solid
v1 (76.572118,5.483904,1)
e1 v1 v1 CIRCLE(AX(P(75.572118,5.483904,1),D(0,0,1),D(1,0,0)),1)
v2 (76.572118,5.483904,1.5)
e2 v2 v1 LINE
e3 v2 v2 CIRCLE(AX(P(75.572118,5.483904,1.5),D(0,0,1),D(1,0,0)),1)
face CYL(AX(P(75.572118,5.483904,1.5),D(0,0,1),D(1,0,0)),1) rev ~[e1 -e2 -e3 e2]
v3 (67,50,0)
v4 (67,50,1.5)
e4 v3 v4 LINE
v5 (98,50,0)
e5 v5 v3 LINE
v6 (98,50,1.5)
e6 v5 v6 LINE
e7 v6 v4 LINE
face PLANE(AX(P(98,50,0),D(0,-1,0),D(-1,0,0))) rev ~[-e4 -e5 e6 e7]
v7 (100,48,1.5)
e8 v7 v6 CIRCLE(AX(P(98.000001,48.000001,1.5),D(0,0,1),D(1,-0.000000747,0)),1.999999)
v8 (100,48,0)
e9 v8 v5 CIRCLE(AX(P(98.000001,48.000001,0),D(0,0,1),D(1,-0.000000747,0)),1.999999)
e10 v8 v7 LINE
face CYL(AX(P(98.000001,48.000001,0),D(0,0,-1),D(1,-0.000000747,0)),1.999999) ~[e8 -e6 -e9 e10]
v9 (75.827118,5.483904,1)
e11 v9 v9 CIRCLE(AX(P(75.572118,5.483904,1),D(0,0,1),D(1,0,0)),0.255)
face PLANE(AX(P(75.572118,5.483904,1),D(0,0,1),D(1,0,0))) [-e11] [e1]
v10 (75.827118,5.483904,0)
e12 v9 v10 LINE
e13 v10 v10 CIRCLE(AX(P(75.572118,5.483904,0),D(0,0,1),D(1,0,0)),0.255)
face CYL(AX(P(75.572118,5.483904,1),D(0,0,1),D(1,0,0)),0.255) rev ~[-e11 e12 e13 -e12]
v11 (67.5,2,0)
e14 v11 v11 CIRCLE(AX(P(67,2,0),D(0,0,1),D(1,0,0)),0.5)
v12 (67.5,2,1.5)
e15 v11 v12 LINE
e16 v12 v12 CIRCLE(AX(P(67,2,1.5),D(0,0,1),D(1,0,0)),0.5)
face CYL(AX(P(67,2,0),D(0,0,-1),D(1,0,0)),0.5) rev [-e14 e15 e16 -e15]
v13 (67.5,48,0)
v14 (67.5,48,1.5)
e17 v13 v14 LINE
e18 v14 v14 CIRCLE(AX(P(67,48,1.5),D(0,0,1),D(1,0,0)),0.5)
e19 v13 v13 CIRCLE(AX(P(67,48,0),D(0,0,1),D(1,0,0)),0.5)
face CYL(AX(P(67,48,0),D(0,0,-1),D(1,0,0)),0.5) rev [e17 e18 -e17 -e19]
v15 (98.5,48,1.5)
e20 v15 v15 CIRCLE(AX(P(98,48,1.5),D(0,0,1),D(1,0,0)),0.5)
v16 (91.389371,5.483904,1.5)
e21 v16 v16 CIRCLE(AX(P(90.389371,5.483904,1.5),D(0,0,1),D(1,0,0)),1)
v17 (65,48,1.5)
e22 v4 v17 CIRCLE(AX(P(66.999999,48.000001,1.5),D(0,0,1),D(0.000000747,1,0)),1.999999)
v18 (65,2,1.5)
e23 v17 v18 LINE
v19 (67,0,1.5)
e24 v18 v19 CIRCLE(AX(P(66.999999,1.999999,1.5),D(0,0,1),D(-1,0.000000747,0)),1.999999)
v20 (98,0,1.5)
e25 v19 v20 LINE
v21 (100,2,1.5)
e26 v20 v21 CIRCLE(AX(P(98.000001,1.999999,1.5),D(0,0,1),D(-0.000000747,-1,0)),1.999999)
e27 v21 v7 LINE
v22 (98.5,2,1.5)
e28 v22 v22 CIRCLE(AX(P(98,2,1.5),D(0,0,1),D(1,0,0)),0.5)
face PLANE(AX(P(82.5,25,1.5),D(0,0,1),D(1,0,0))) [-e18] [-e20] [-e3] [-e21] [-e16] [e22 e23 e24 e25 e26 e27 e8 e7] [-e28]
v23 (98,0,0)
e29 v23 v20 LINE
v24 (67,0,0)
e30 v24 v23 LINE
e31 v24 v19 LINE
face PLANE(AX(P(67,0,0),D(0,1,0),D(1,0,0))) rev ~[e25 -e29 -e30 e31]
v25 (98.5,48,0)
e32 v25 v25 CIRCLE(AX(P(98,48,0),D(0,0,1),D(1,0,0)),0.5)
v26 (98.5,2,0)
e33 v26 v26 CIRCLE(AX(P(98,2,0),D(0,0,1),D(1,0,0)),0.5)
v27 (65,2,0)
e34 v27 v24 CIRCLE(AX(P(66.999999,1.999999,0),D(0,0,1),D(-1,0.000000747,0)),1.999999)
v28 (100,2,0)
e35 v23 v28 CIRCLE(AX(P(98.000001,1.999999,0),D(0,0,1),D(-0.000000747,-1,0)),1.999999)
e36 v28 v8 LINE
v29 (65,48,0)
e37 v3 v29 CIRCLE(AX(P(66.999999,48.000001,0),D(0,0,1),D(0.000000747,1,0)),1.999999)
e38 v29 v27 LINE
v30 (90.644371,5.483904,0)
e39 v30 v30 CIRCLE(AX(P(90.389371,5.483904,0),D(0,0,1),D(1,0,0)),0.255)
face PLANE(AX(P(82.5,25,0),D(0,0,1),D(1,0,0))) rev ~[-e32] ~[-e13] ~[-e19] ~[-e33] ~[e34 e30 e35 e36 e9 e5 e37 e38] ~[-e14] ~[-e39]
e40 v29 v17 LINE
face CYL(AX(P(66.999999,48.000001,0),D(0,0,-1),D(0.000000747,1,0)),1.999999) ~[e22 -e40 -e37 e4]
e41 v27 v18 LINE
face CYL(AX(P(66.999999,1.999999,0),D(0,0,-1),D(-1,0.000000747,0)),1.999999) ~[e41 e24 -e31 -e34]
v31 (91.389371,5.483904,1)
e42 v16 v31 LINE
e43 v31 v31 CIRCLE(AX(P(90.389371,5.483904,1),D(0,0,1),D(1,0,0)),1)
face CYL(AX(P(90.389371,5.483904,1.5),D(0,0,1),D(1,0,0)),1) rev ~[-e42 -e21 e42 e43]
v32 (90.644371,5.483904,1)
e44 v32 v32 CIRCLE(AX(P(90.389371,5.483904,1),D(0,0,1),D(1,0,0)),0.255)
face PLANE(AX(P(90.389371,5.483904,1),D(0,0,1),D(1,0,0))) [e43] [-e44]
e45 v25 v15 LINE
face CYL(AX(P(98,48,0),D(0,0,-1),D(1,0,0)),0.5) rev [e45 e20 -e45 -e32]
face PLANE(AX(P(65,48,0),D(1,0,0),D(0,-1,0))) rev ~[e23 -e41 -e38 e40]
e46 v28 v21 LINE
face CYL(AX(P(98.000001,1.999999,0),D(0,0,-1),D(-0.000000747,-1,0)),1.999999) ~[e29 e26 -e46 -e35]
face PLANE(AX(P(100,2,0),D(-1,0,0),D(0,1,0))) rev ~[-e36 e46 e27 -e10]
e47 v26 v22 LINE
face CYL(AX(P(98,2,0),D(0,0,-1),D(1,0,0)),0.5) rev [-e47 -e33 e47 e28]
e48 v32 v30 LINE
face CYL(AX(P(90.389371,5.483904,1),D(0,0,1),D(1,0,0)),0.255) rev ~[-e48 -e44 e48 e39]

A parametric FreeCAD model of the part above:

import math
import FreeCAD as App
import Part
import Sketcher
from FreeCAD import Vector
Q = App.Units.Quantity

doc = App.newDocument("Part")
body = doc.addObject("PartDesign::Body", "Body")

# Sketch on XY plane
sketch1 = body.newObject("Sketcher::SketchObject", "Sketch")
sketch1.AttachmentSupport = (doc.getObject("XY_Plane"), [""])
sketch1.MapMode = "FlatFace"
sketch1.addGeometry([
    Part.ArcOfCircle(Part.Circle(Vector(67, 2, 0), Vector(0, 0, 1), 2), math.radians(180), math.radians(270)),  # 0
    Part.LineSegment(Vector(67, 0, 0), Vector(98, 0, 0)),  # 1
    Part.ArcOfCircle(Part.Circle(Vector(98, 2, 0), Vector(0, 0, 1), 2), math.radians(-90), math.radians(0)),  # 2
    Part.LineSegment(Vector(100, 2, 0), Vector(100, 48, 0)),  # 3
    Part.ArcOfCircle(Part.Circle(Vector(98, 48, 0), Vector(0, 0, 1), 2), math.radians(0), math.radians(90)),  # 4
    Part.LineSegment(Vector(98, 50, 0), Vector(67, 50, 0)),  # 5
    Part.ArcOfCircle(Part.Circle(Vector(67, 48, 0), Vector(0, 0, 1), 2), math.radians(90), math.radians(180)),  # 6
    Part.LineSegment(Vector(65, 48, 0), Vector(65, 2, 0)),  # 7
    Part.Circle(Vector(67, 2, 0), Vector(0, 0, 1), 0.5),  # 8
    Part.Circle(Vector(98, 2, 0), Vector(0, 0, 1), 0.5),  # 9
    Part.Circle(Vector(67, 48, 0), Vector(0, 0, 1), 0.5),  # 10
    Part.Circle(Vector(98, 48, 0), Vector(0, 0, 1), 0.5),  # 11
], False)
sketch1.addConstraint([
    Sketcher.Constraint("Tangent", 0, 2, 1, 1),
    Sketcher.Constraint("Tangent", 1, 2, 2, 1),
    Sketcher.Constraint("Tangent", 2, 2, 3, 1),
    Sketcher.Constraint("Tangent", 3, 2, 4, 1),
    Sketcher.Constraint("Tangent", 4, 2, 5, 1),
    Sketcher.Constraint("Tangent", 5, 2, 6, 1),
    Sketcher.Constraint("Tangent", 6, 2, 7, 1),
    Sketcher.Constraint("Tangent", 7, 2, 0, 1),
    Sketcher.Constraint("Horizontal", 1),
    Sketcher.Constraint("Vertical", 3),
    Sketcher.Constraint("Horizontal", 5),
    Sketcher.Constraint("Vertical", 7),
    Sketcher.Constraint("Coincident", 8, 3, 0, 3),
    Sketcher.Constraint("Coincident", 9, 3, 2, 3),
    Sketcher.Constraint("Coincident", 10, 3, 6, 3),
    Sketcher.Constraint("Coincident", 11, 3, 4, 3),
    Sketcher.Constraint("Equal", 0, 2),
    Sketcher.Constraint("Equal", 2, 4),
    Sketcher.Constraint("Equal", 4, 6),
    Sketcher.Constraint("Equal", 8, 9),
    Sketcher.Constraint("Equal", 9, 10),
    Sketcher.Constraint("Equal", 10, 11),
    Sketcher.Constraint("PointOnObject", 0, 2, -1),
    Sketcher.Constraint("Diameter", 8, Q("1 mm")),
    Sketcher.Constraint("Radius", 0, Q("1.999999 mm")),
    Sketcher.Constraint("DistanceX", 1, 1, 1, 2, Q("31 mm")),
    Sketcher.Constraint("DistanceY", 3, 1, 3, 2, Q("46 mm")),
    Sketcher.Constraint("DistanceX", -1, 1, 0, 3, Q("66.999999 mm")),
])
pad1 = body.newObject("PartDesign::Pad", "Pad")
pad1.Profile = sketch1
pad1.Length = 1.5

# Sketch on XY plane
sketch2 = body.newObject("Sketcher::SketchObject", "Sketch001")
sketch2.AttachmentSupport = (doc.getObject("XY_Plane"), [""])
sketch2.MapMode = "FlatFace"
sketch2.AttachmentOffset = App.Placement(Vector(0, 0, 1.5), App.Rotation())
sketch2.addGeometry([
    Part.Circle(Vector(90.4, 5.5, 0), Vector(0, 0, 1), 1),
    Part.Circle(Vector(75.6, 5.5, 0), Vector(0, 0, 1), 1),
], False)
sketch2.addConstraint([
    Sketcher.Constraint("Equal", 0, 1),
    Sketcher.Constraint("Horizontal", 0, 3, 1, 3),
    Sketcher.Constraint("Diameter", 0, Q("2 mm")),
    Sketcher.Constraint("DistanceX", -1, 1, 0, 3, Q("90.389371 mm")),
    Sketcher.Constraint("DistanceX", -1, 1, 1, 3, Q("75.572118 mm")),
    Sketcher.Constraint("DistanceY", -1, 1, 0, 3, Q("5.483904 mm")),
])
pocket1 = body.newObject("PartDesign::Pocket", "Pocket")
pocket1.Profile = sketch2
pocket1.Length = 0.5

# Sketch on XY plane
sketch3 = body.newObject("Sketcher::SketchObject", "Sketch002")
sketch3.AttachmentSupport = (doc.getObject("XY_Plane"), [""])
sketch3.MapMode = "FlatFace"
sketch3.AttachmentOffset = App.Placement(Vector(0, 0, 1), App.Rotation())
sketch3.addGeometry(Part.Circle(Vector(90.39, 5.48, 0), Vector(0, 0, 1), 0.26), False)
sketch3.addConstraint([
    Sketcher.Constraint("Diameter", 0, Q("0.51 mm")),
    Sketcher.Constraint("DistanceX", -1, 1, 0, 3, Q("90.389371 mm")),
    Sketcher.Constraint("DistanceY", -1, 1, 0, 3, Q("5.483904 mm")),
])
pocket2 = body.newObject("PartDesign::Pocket", "Pocket001")
pocket2.Profile = sketch3
pocket2.Length = 1

# Sketch on XY plane
sketch4 = body.newObject("Sketcher::SketchObject", "Sketch003")
sketch4.AttachmentSupport = (doc.getObject("XY_Plane"), [""])
sketch4.MapMode = "FlatFace"
sketch4.AttachmentOffset = App.Placement(Vector(0, 0, 1), App.Rotation())
sketch4.addGeometry(Part.Circle(Vector(75.57, 5.48, 0), Vector(0, 0, 1), 0.26), False)
sketch4.addConstraint([
    Sketcher.Constraint("Diameter", 0, Q("0.51 mm")),
    Sketcher.Constraint("DistanceX", -1, 1, 0, 3, Q("75.572118 mm")),
    Sketcher.Constraint("DistanceY", -1, 1, 0, 3, Q("5.483904 mm")),
])
pocket3 = body.newObject("PartDesign::Pocket", "Pocket002")
pocket3.Profile = sketch4
pocket3.Length = 1

doc.recompute()
